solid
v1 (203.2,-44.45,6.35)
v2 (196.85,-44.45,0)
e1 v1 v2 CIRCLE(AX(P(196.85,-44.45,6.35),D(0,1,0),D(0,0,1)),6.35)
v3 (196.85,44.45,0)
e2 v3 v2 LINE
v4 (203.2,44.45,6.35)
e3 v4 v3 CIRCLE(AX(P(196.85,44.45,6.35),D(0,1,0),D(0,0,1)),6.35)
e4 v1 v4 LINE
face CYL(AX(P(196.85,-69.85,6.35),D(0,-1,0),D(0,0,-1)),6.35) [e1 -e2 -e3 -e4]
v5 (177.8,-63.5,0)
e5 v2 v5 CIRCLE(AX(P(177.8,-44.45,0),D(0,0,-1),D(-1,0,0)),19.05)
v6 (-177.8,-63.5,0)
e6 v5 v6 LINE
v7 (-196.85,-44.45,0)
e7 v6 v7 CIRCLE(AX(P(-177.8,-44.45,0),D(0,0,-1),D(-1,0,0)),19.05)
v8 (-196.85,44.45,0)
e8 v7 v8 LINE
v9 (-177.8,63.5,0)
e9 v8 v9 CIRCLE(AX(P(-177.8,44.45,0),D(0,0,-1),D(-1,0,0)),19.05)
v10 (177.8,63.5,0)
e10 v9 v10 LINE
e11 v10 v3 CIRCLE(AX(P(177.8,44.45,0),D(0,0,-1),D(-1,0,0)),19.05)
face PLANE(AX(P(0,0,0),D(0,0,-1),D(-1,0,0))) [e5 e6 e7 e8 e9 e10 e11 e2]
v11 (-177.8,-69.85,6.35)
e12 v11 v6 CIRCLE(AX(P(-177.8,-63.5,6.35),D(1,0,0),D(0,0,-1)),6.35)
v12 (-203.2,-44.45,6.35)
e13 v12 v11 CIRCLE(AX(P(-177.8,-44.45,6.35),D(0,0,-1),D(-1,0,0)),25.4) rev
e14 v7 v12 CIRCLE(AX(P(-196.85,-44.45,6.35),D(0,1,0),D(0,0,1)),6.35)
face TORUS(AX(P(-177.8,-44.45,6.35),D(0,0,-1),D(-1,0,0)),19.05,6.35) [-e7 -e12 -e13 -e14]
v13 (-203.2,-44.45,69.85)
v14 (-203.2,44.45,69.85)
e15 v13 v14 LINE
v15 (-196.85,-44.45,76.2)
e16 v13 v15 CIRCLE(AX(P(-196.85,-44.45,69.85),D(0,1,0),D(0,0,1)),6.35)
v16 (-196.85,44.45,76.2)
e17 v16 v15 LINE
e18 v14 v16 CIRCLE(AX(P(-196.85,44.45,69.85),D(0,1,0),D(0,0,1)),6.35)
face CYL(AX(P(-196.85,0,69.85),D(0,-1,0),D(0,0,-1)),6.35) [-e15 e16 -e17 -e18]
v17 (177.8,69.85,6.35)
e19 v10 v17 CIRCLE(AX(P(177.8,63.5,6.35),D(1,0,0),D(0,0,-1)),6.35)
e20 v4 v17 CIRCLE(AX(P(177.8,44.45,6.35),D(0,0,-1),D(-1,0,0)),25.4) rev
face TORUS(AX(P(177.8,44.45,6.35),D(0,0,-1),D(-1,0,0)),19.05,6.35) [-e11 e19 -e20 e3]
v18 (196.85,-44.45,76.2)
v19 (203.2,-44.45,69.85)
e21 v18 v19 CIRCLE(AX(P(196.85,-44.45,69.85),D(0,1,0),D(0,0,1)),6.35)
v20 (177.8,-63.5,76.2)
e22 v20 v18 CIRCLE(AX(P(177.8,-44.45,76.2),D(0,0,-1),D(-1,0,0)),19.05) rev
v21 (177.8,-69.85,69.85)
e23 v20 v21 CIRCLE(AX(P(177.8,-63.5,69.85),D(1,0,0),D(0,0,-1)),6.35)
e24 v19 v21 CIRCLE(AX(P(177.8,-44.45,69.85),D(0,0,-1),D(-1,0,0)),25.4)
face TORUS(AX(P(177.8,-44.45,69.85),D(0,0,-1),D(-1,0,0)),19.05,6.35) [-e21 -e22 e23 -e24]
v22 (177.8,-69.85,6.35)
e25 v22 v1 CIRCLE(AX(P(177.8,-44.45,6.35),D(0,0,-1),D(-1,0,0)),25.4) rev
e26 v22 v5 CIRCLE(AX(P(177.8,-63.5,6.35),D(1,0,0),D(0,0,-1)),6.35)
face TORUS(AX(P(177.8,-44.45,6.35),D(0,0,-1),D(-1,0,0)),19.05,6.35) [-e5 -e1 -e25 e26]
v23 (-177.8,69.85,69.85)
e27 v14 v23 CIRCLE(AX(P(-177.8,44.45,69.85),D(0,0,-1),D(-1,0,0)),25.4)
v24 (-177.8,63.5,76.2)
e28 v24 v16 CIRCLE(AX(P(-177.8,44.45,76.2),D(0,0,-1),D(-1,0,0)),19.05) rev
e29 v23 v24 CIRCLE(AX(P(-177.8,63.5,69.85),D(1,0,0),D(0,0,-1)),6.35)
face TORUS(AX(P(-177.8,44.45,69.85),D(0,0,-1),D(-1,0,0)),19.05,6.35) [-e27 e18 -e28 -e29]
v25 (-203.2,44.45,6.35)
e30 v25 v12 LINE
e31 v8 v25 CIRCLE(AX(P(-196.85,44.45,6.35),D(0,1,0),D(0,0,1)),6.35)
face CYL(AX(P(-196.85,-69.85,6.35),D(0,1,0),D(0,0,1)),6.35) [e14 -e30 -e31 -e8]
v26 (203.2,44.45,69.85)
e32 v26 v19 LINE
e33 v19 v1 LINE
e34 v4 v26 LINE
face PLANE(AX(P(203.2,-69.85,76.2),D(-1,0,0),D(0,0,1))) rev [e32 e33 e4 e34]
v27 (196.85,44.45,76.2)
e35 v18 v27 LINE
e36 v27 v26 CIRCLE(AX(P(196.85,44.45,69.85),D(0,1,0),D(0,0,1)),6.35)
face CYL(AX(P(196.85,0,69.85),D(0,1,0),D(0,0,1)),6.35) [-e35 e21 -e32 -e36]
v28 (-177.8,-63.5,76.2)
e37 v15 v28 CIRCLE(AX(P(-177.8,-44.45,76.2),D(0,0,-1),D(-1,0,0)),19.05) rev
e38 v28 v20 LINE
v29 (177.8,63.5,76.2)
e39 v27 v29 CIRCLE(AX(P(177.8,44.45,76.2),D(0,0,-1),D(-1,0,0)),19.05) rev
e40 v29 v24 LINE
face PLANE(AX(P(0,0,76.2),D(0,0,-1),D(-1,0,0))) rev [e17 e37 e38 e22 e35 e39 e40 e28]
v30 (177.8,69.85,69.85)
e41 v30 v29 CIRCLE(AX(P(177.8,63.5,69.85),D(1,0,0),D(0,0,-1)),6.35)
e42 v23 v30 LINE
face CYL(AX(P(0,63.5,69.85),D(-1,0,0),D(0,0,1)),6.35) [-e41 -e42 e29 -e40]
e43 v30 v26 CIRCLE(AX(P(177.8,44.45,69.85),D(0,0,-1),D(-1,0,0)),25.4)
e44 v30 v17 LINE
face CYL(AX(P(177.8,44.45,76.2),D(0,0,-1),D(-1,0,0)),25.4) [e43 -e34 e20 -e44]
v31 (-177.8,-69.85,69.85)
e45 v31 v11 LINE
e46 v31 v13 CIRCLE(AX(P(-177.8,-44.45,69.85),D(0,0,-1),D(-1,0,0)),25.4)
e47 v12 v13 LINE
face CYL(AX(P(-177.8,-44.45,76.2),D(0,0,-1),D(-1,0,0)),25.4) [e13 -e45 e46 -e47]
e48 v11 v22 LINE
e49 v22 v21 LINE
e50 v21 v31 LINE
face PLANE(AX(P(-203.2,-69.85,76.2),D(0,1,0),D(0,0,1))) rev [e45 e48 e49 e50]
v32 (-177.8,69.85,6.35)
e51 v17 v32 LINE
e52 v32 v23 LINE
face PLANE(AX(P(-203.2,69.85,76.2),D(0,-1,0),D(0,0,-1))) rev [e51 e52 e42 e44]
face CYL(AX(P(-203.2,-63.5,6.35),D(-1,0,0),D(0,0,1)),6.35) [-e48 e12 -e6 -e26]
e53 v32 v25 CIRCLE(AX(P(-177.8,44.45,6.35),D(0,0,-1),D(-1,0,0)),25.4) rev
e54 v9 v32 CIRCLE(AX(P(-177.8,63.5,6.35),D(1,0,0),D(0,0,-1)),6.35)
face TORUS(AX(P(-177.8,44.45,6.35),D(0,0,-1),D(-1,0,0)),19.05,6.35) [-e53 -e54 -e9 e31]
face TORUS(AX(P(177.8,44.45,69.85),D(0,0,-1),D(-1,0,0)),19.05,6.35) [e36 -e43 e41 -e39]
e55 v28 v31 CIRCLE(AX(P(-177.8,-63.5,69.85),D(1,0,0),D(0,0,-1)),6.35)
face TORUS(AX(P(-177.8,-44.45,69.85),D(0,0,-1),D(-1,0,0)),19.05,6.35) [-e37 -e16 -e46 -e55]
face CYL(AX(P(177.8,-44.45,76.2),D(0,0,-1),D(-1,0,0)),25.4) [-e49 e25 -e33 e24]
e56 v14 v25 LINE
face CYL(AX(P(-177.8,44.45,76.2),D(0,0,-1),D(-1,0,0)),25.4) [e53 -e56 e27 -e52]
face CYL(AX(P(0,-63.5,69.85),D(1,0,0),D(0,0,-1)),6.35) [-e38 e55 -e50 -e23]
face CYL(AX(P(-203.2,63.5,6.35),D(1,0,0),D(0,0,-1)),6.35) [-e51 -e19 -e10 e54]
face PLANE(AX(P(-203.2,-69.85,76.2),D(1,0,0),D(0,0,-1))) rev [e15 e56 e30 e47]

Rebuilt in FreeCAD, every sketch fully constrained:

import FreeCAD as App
import Part
import Sketcher
Q = App.Units.Quantity


def edges_at(feature, points):
    """Names of the edges that pass closest to the given points."""
    edges = feature.Shape.Edges
    near = lambda p: min(range(len(edges)), key=lambda i: edges[i].distToShape(Part.Vertex(*p))[0])
    return sorted({f"Edge{near(p) + 1}" for p in points})

doc = App.newDocument("Part")
body = doc.addObject("PartDesign::Body", "Body")

# Sketch on XY plane
sketch1 = body.newObject("Sketcher::SketchObject", "Sketch")
sketch1.AttachmentSupport = (doc.getObject("XY_Plane"), [""])
sketch1.MapMode = "FlatFace"
sketch1.addGeometry(Part.LineSegment(App.Vector(-203, 70, 0), App.Vector(-203, -70, 0)), False)
sketch1.addGeometry(Part.LineSegment(App.Vector(-203, -70, 0), App.Vector(203, -70, 0)), False)
sketch1.addGeometry(Part.LineSegment(App.Vector(203, -70, 0), App.Vector(203, 70, 0)), False)
sketch1.addGeometry(Part.LineSegment(App.Vector(203, 70, 0), App.Vector(-203, 70, 0)), False)
sketch1.addConstraint(Sketcher.Constraint("Coincident", 0, 2, 1, 1))
sketch1.addConstraint(Sketcher.Constraint("Coincident", 1, 2, 2, 1))
sketch1.addConstraint(Sketcher.Constraint("Coincident", 2, 2, 3, 1))
sketch1.addConstraint(Sketcher.Constraint("Coincident", 3, 2, 0, 1))
sketch1.addConstraint(Sketcher.Constraint("Vertical", 0))
sketch1.addConstraint(Sketcher.Constraint("Horizontal", 1))
sketch1.addConstraint(Sketcher.Constraint("Vertical", 2))
sketch1.addConstraint(Sketcher.Constraint("Horizontal", 3))
sketch1.addConstraint(Sketcher.Constraint("Symmetric", 0, 2, 2, 2, -1, 1))
sketch1.addConstraint(Sketcher.Constraint("DistanceX", 1, 1, 1, 2, Q("16 in")))
sketch1.addConstraint(Sketcher.Constraint("DistanceY", 0, 2, 0, 1, Q("5.5 in")))
pad1 = body.newObject("PartDesign::Pad", "Pad")
pad1.Profile = sketch1
pad1.Length = Q("3 in")
doc.recompute()

fillet = body.newObject("PartDesign::Fillet", "Fillet")
fillet.Base = (pad1, edges_at(pad1, [
    (203.2, -69.85, 38.1),
    (-203.2, -69.85, 38.1),
    (-203.2, 69.85, 38.1),
    (203.2, 69.85, 38.1),
]))
fillet.Radius = Q("1 in")
doc.recompute()

fillet2 = body.newObject("PartDesign::Fillet", "Fillet001")
fillet2.Base = (fillet, edges_at(fillet, [
    (203.2, 0, 0),
    (203.2, 0, 76.2),
    (0, -69.85, 0),
    (-203.2, 0, 0),
    (0, 69.85, 0),
    (195.761, 62.411, 0),
    (-195.761, 62.411, 0),
    (-195.761, -62.411, 0),
    (195.761, -62.411, 0),
    (0, -69.85, 76.2),
    (0, 69.85, 76.2),
    (-203.2, 0, 76.2),
    (195.761, 62.411, 76.2),
    (-195.761, 62.411, 76.2),
    (-195.761, -62.411, 76.2),
    (195.761, -62.411, 76.2),
]))
fillet2.Radius = Q("0.25 in")

doc.recompute()
